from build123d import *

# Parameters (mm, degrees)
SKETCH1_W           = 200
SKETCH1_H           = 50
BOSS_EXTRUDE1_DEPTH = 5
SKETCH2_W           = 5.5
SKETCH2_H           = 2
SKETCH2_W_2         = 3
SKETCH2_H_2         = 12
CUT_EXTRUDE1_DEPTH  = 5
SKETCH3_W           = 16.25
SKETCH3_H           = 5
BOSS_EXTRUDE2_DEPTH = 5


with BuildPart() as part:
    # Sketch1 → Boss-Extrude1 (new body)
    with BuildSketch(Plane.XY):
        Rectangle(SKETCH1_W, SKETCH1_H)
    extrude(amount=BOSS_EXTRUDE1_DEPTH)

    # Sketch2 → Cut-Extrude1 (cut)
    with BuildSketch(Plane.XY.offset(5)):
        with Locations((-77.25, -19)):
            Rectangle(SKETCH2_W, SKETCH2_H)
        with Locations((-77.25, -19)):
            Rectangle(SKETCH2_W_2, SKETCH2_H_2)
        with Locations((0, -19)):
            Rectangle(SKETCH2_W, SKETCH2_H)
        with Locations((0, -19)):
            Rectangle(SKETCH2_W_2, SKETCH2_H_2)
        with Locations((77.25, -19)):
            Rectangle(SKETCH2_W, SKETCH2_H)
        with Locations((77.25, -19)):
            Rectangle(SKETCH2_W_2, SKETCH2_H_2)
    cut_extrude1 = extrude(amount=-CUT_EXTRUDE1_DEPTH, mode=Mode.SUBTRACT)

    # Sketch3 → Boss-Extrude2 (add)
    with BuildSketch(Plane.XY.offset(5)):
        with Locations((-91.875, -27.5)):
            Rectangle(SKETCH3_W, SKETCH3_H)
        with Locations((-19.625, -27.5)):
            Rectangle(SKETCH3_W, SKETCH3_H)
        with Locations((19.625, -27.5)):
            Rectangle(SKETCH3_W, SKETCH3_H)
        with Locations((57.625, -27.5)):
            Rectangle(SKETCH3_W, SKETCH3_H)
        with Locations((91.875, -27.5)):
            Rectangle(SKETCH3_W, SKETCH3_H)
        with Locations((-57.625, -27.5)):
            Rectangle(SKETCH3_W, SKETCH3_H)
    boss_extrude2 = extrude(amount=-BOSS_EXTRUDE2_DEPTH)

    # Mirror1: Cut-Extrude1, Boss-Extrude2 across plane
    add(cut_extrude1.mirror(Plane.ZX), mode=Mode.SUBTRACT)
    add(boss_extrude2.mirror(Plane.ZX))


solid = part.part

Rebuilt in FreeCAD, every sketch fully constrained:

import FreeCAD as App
import Part
import Sketcher
from FreeCAD import Vector

doc = App.newDocument("Part")
params = doc.addObject("Spreadsheet::Sheet", "Params")
for row, (alias, value) in enumerate([
    ("sketch1_width", "200 mm"),
    ("sketch1_height", "50 mm"),
    ("pad1_length", "5 mm"),
    ("sketch2_width", "3 mm"),
    ("sketch2_height", "2 mm"),
    ("sketch2_height2", "5 mm"),
    ("pocket1_length", "5 mm"),
    ("sketch3_height", "5 mm"),
    ("pad2_length", "5 mm"),
], start=1):
    params.set(f"A{row}", alias)
    params.set(f"B{row}", "=" + value)
    params.setAlias(f"B{row}", alias)

body = doc.addObject("PartDesign::Body", "Body")

sketch1 = doc.addObject("Sketcher::SketchObject", "Sketch")
body.addObject(sketch1)
sketch1.AttachmentSupport = (doc.XY_Plane, [""])
sketch1.MapMode = "FlatFace"
sketch1.addGeometry(Part.LineSegment(Vector(-100, 25, 0), Vector(-100, -25, 0)), False)
sketch1.addGeometry(Part.LineSegment(Vector(-100, -25, 0), Vector(100, -25, 0)), False)
sketch1.addGeometry(Part.LineSegment(Vector(100, -25, 0), Vector(100, 25, 0)), False)
sketch1.addGeometry(Part.LineSegment(Vector(100, 25, 0), Vector(-100, 25, 0)), False)
sketch1.addConstraint(Sketcher.Constraint("Coincident", 0, 2, 1, 1))
sketch1.addConstraint(Sketcher.Constraint("Coincident", 1, 2, 2, 1))
sketch1.addConstraint(Sketcher.Constraint("Coincident", 2, 2, 3, 1))
sketch1.addConstraint(Sketcher.Constraint("Coincident", 3, 2, 0, 1))
sketch1.addConstraint(Sketcher.Constraint("Vertical", 0))
sketch1.addConstraint(Sketcher.Constraint("Horizontal", 1))
sketch1.addConstraint(Sketcher.Constraint("Vertical", 2))
sketch1.addConstraint(Sketcher.Constraint("Horizontal", 3))
sketch1.addConstraint(Sketcher.Constraint("Symmetric", 0, 2, 2, 2, -1, 1))
sketch1.addConstraint(Sketcher.Constraint("DistanceX", 1, 1, 1, 2, 200.0))
sketch1.addConstraint(Sketcher.Constraint("DistanceY", 0, 2, 0, 1, 50.0))
sketch1.setExpression("Constraints[9]", "Params.sketch1_width")
sketch1.setExpression("Constraints[10]", "Params.sketch1_height")
pad1 = doc.addObject("PartDesign::Pad", "Pad")
body.addObject(pad1)
pad1.Profile = sketch1
pad1.setExpression("Length", "Params.pad1_length")

sketch2 = doc.addObject("Sketcher::SketchObject", "Sketch001")
body.addObject(sketch2)
sketch2.AttachmentSupport = (doc.XY_Plane, [""])
sketch2.MapMode = "FlatFace"
sketch2.AttachmentOffset = App.Placement(Vector(0, 0, 5), App.Rotation())
sketch2.addGeometry(Part.LineSegment(Vector(-80, -18, 0), Vector(-80, -20, 0)), False)
sketch2.addGeometry(Part.LineSegment(Vector(-80, -20, 0), Vector(-78.8, -20, 0)), False)
sketch2.addGeometry(Part.LineSegment(Vector(-78.8, -20, 0), Vector(-78.8, -25, 0)), False)
sketch2.addGeometry(Part.LineSegment(Vector(-78.8, -25, 0), Vector(-75.8, -25, 0)), False)
sketch2.addGeometry(Part.LineSegment(Vector(-75.8, -25, 0), Vector(-75.8, -20, 0)), False)
sketch2.addGeometry(Part.LineSegment(Vector(-75.8, -20, 0), Vector(-74.5, -20, 0)), False)
sketch2.addGeometry(Part.LineSegment(Vector(-74.5, -20, 0), Vector(-74.5, -18, 0)), False)
sketch2.addGeometry(Part.LineSegment(Vector(-74.5, -18, 0), Vector(-75.8, -18, 0)), False)
sketch2.addGeometry(Part.LineSegment(Vector(-75.8, -18, 0), Vector(-75.8, -13, 0)), False)
sketch2.addGeometry(Part.LineSegment(Vector(-75.8, -13, 0), Vector(-78.8, -13, 0)), False)
sketch2.addGeometry(Part.LineSegment(Vector(-78.8, -13, 0), Vector(-78.8, -18, 0)), False)
sketch2.addGeometry(Part.LineSegment(Vector(-78.8, -18, 0), Vector(-80, -18, 0)), False)
sketch2.addGeometry(Part.LineSegment(Vector(-2.8, -18, 0), Vector(-2.8, -20, 0)), False)
sketch2.addGeometry(Part.LineSegment(Vector(-2.8, -20, 0), Vector(-1.5, -20, 0)), False)
sketch2.addGeometry(Part.LineSegment(Vector(-1.5, -20, 0), Vector(-1.5, -25, 0)), False)
sketch2.addGeometry(Part.LineSegment(Vector(-1.5, -25, 0), Vector(1.5, -25, 0)), False)
sketch2.addGeometry(Part.LineSegment(Vector(1.5, -25, 0), Vector(1.5, -20, 0)), False)
sketch2.addGeometry(Part.LineSegment(Vector(1.5, -20, 0), Vector(2.8, -20, 0)), False)
sketch2.addGeometry(Part.LineSegment(Vector(2.8, -20, 0), Vector(2.8, -18, 0)), False)
sketch2.addGeometry(Part.LineSegment(Vector(2.8, -18, 0), Vector(1.5, -18, 0)), False)
sketch2.addGeometry(Part.LineSegment(Vector(1.5, -18, 0), Vector(1.5, -13, 0)), False)
sketch2.addGeometry(Part.LineSegment(Vector(1.5, -13, 0), Vector(-1.5, -13, 0)), False)
sketch2.addGeometry(Part.LineSegment(Vector(-1.5, -13, 0), Vector(-1.5, -18, 0)), False)
sketch2.addGeometry(Part.LineSegment(Vector(-1.5, -18, 0), Vector(-2.8, -18, 0)), False)
sketch2.addGeometry(Part.LineSegment(Vector(74.5, -18, 0), Vector(74.5, -20, 0)), False)
sketch2.addGeometry(Part.LineSegment(Vector(74.5, -20, 0), Vector(75.8, -20, 0)), False)
sketch2.addGeometry(Part.LineSegment(Vector(75.8, -20, 0), Vector(75.8, -25, 0)), False)
sketch2.addGeometry(Part.LineSegment(Vector(75.8, -25, 0), Vector(78.8, -25, 0)), False)
sketch2.addGeometry(Part.LineSegment(Vector(78.8, -25, 0), Vector(78.8, -20, 0)), False)
sketch2.addGeometry(Part.LineSegment(Vector(78.8, -20, 0), Vector(80, -20, 0)), False)
sketch2.addGeometry(Part.LineSegment(Vector(80, -20, 0), Vector(80, -18, 0)), False)
sketch2.addGeometry(Part.LineSegment(Vector(80, -18, 0), Vector(78.8, -18, 0)), False)
sketch2.addGeometry(Part.LineSegment(Vector(78.8, -18, 0), Vector(78.8, -13, 0)), False)
sketch2.addGeometry(Part.LineSegment(Vector(78.8, -13, 0), Vector(75.8, -13, 0)), False)
sketch2.addGeometry(Part.LineSegment(Vector(75.8, -13, 0), Vector(75.8, -18, 0)), False)
sketch2.addGeometry(Part.LineSegment(Vector(75.8, -18, 0), Vector(74.5, -18, 0)), False)
sketch2.addConstraint(Sketcher.Constraint("Coincident", 0, 2, 1, 1))
sketch2.addConstraint(Sketcher.Constraint("Coincident", 1, 2, 2, 1))
sketch2.addConstraint(Sketcher.Constraint("Coincident", 2, 2, 3, 1))
sketch2.addConstraint(Sketcher.Constraint("Coincident", 3, 2, 4, 1))
sketch2.addConstraint(Sketcher.Constraint("Coincident", 4, 2, 5, 1))
sketch2.addConstraint(Sketcher.Constraint("Coincident", 5, 2, 6, 1))
sketch2.addConstraint(Sketcher.Constraint("Coincident", 6, 2, 7, 1))
sketch2.addConstraint(Sketcher.Constraint("Coincident", 7, 2, 8, 1))
sketch2.addConstraint(Sketcher.Constraint("Coincident", 8, 2, 9, 1))
sketch2.addConstraint(Sketcher.Constraint("Coincident", 9, 2, 10, 1))
sketch2.addConstraint(Sketcher.Constraint("Coincident", 10, 2, 11, 1))
sketch2.addConstraint(Sketcher.Constraint("Coincident", 11, 2, 0, 1))
sketch2.addConstraint(Sketcher.Constraint("Coincident", 12, 2, 13, 1))
sketch2.addConstraint(Sketcher.Constraint("Coincident", 13, 2, 14, 1))
sketch2.addConstraint(Sketcher.Constraint("Coincident", 14, 2, 15, 1))
sketch2.addConstraint(Sketcher.Constraint("Coincident", 15, 2, 16, 1))
sketch2.addConstraint(Sketcher.Constraint("Coincident", 16, 2, 17, 1))
sketch2.addConstraint(Sketcher.Constraint("Coincident", 17, 2, 18, 1))
sketch2.addConstraint(Sketcher.Constraint("Coincident", 18, 2, 19, 1))
sketch2.addConstraint(Sketcher.Constraint("Coincident", 19, 2, 20, 1))
sketch2.addConstraint(Sketcher.Constraint("Coincident", 20, 2, 21, 1))
sketch2.addConstraint(Sketcher.Constraint("Coincident", 21, 2, 22, 1))
sketch2.addConstraint(Sketcher.Constraint("Coincident", 22, 2, 23, 1))
sketch2.addConstraint(Sketcher.Constraint("Coincident", 23, 2, 12, 1))
sketch2.addConstraint(Sketcher.Constraint("Coincident", 24, 2, 25, 1))
sketch2.addConstraint(Sketcher.Constraint("Coincident", 25, 2, 26, 1))
sketch2.addConstraint(Sketcher.Constraint("Coincident", 26, 2, 27, 1))
sketch2.addConstraint(Sketcher.Constraint("Coincident", 27, 2, 28, 1))
sketch2.addConstraint(Sketcher.Constraint("Coincident", 28, 2, 29, 1))
sketch2.addConstraint(Sketcher.Constraint("Coincident", 29, 2, 30, 1))
sketch2.addConstraint(Sketcher.Constraint("Coincident", 30, 2, 31, 1))
sketch2.addConstraint(Sketcher.Constraint("Coincident", 31, 2, 32, 1))
sketch2.addConstraint(Sketcher.Constraint("Coincident", 32, 2, 33, 1))
sketch2.addConstraint(Sketcher.Constraint("Coincident", 33, 2, 34, 1))
sketch2.addConstraint(Sketcher.Constraint("Coincident", 34, 2, 35, 1))
sketch2.addConstraint(Sketcher.Constraint("Coincident", 35, 2, 24, 1))
sketch2.addConstraint(Sketcher.Constraint("Vertical", 0))
sketch2.addConstraint(Sketcher.Constraint("Horizontal", 1))
sketch2.addConstraint(Sketcher.Constraint("Vertical", 2))
sketch2.addConstraint(Sketcher.Constraint("Horizontal", 3))
sketch2.addConstraint(Sketcher.Constraint("Vertical", 4))
sketch2.addConstraint(Sketcher.Constraint("Horizontal", 5))
sketch2.addConstraint(Sketcher.Constraint("Vertical", 6))
sketch2.addConstraint(Sketcher.Constraint("Horizontal", 7))
sketch2.addConstraint(Sketcher.Constraint("Vertical", 8))
sketch2.addConstraint(Sketcher.Constraint("Horizontal", 9))
sketch2.addConstraint(Sketcher.Constraint("Vertical", 10))
sketch2.addConstraint(Sketcher.Constraint("Horizontal", 11))
sketch2.addConstraint(Sketcher.Constraint("Vertical", 12))
sketch2.addConstraint(Sketcher.Constraint("Horizontal", 13))
sketch2.addConstraint(Sketcher.Constraint("Vertical", 14))
sketch2.addConstraint(Sketcher.Constraint("Horizontal", 15))
sketch2.addConstraint(Sketcher.Constraint("Vertical", 16))
sketch2.addConstraint(Sketcher.Constraint("Horizontal", 17))
sketch2.addConstraint(Sketcher.Constraint("Vertical", 18))
sketch2.addConstraint(Sketcher.Constraint("Horizontal", 19))
sketch2.addConstraint(Sketcher.Constraint("Vertical", 20))
sketch2.addConstraint(Sketcher.Constraint("Horizontal", 21))
sketch2.addConstraint(Sketcher.Constraint("Vertical", 22))
sketch2.addConstraint(Sketcher.Constraint("Horizontal", 23))
sketch2.addConstraint(Sketcher.Constraint("Vertical", 24))
sketch2.addConstraint(Sketcher.Constraint("Horizontal", 25))
sketch2.addConstraint(Sketcher.Constraint("Vertical", 26))
sketch2.addConstraint(Sketcher.Constraint("Horizontal", 27))
sketch2.addConstraint(Sketcher.Constraint("Vertical", 28))
sketch2.addConstraint(Sketcher.Constraint("Horizontal", 29))
sketch2.addConstraint(Sketcher.Constraint("Vertical", 30))
sketch2.addConstraint(Sketcher.Constraint("Horizontal", 31))
sketch2.addConstraint(Sketcher.Constraint("Vertical", 32))
sketch2.addConstraint(Sketcher.Constraint("Horizontal", 33))
sketch2.addConstraint(Sketcher.Constraint("Vertical", 34))
sketch2.addConstraint(Sketcher.Constraint("Horizontal", 35))
sketch2.addConstraint(Sketcher.Constraint("Symmetric", 13, 2, 16, 2, -2))
sketch2.addConstraint(Sketcher.Constraint("Symmetric", 19, 2, 22, 2, -2))
sketch2.addConstraint(Sketcher.Constraint("Symmetric", 5, 2, 24, 2, -2))
sketch2.addConstraint(Sketcher.Constraint("Symmetric", 3, 2, 26, 2, -2))
sketch2.addConstraint(Sketcher.Constraint("Symmetric", 1, 2, 28, 2, -2))
sketch2.addConstraint(Sketcher.Constraint("Symmetric", 11, 2, 30, 2, -2))
sketch2.addConstraint(Sketcher.Constraint("Symmetric", 9, 2, 32, 2, -2))
sketch2.addConstraint(Sketcher.Constraint("Symmetric", 7, 2, 34, 2, -2))
sketch2.addConstraint(Sketcher.Constraint("Horizontal", 1, 2, 4, 2))
sketch2.addConstraint(Sketcher.Constraint("Horizontal", 7, 2, 10, 2))
sketch2.addConstraint(Sketcher.Constraint("Horizontal", 5, 2, 12, 2))
sketch2.addConstraint(Sketcher.Constraint("Horizontal", 3, 2, 14, 2))
sketch2.addConstraint(Sketcher.Constraint("Horizontal", 11, 2, 18, 2))
sketch2.addConstraint(Sketcher.Constraint("Horizontal", 9, 2, 20, 2))
sketch2.addConstraint(Sketcher.Constraint("Vertical", 4, 2, 7, 2))
sketch2.addConstraint(Sketcher.Constraint("Vertical", 2, 2, 9, 2))
sketch2.addConstraint(Sketcher.Constraint("Vertical", 16, 2, 19, 2))
sketch2.addConstraint(Sketcher.Constraint("Equal", 1, 5))
sketch2.addConstraint(Sketcher.Constraint("Equal", 11, 13))
sketch2.addConstraint(Sketcher.Constraint("Equal", 9, 15))
sketch2.addConstraint(Sketcher.Constraint("Equal", 13, 17))
sketch2.addConstraint(Sketcher.Constraint("Equal", 4, 8))
sketch2.addConstraint(Sketcher.Constraint("DistanceX", 3, 1, 3, 2, 3.0))
sketch2.addConstraint(Sketcher.Constraint("DistanceY", 0, 2, 0, 1, 2.0))
sketch2.addConstraint(Sketcher.Constraint("DistanceY", 2, 2, 2, 1, 5.0))
sketch2.addConstraint(Sketcher.Constraint("DistanceX", 0, 2, -1, 1, 80.0))
sketch2.addConstraint(Sketcher.Constraint("DistanceY", 0, 2, -1, 1, 20.0))
sketch2.addConstraint(Sketcher.Constraint("DistanceX", 4, 2, 12, 2, 73.0))
sketch2.setExpression("Constraints[94]", "Params.sketch2_width")
sketch2.setExpression("Constraints[95]", "Params.sketch2_height")
sketch2.setExpression("Constraints[96]", "Params.sketch2_height2")
pocket1 = doc.addObject("PartDesign::Pocket", "Pocket")
body.addObject(pocket1)
pocket1.Profile = sketch2
pocket1.setExpression("Length", "Params.pocket1_length")

sketch3 = doc.addObject("Sketcher::SketchObject", "Sketch002")
body.addObject(sketch3)
sketch3.AttachmentSupport = (doc.XY_Plane, [""])
sketch3.MapMode = "FlatFace"
sketch3.AttachmentOffset = App.Placement(Vector(0, 0, 5), App.Rotation())
sketch3.addGeometry(Part.LineSegment(Vector(-100, -25, 0), Vector(-100, -30, 0)), False)
sketch3.addGeometry(Part.LineSegment(Vector(-100, -30, 0), Vector(-84, -30, 0)), False)
sketch3.addGeometry(Part.LineSegment(Vector(-84, -30, 0), Vector(-84, -25, 0)), False)
sketch3.addGeometry(Part.LineSegment(Vector(-84, -25, 0), Vector(-100, -25, 0)), False)
sketch3.addGeometry(Part.LineSegment(Vector(-28, -25, 0), Vector(-28, -30, 0)), False)
sketch3.addGeometry(Part.LineSegment(Vector(-28, -30, 0), Vector(-12, -30, 0)), False)
sketch3.addGeometry(Part.LineSegment(Vector(-12, -30, 0), Vector(-12, -25, 0)), False)
sketch3.addGeometry(Part.LineSegment(Vector(-12, -25, 0), Vector(-28, -25, 0)), False)
sketch3.addGeometry(Part.LineSegment(Vector(12, -25, 0), Vector(12, -30, 0)), False)
sketch3.addGeometry(Part.LineSegment(Vector(12, -30, 0), Vector(28, -30, 0)), False)
sketch3.addGeometry(Part.LineSegment(Vector(28, -30, 0), Vector(28, -25, 0)), False)
sketch3.addGeometry(Part.LineSegment(Vector(28, -25, 0), Vector(12, -25, 0)), False)
sketch3.addGeometry(Part.LineSegment(Vector(50, -25, 0), Vector(50, -30, 0)), False)
sketch3.addGeometry(Part.LineSegment(Vector(50, -30, 0), Vector(66, -30, 0)), False)
sketch3.addGeometry(Part.LineSegment(Vector(66, -30, 0), Vector(66, -25, 0)), False)
sketch3.addGeometry(Part.LineSegment(Vector(66, -25, 0), Vector(50, -25, 0)), False)
sketch3.addGeometry(Part.LineSegment(Vector(84, -25, 0), Vector(84, -30, 0)), False)
sketch3.addGeometry(Part.LineSegment(Vector(84, -30, 0), Vector(100, -30, 0)), False)
sketch3.addGeometry(Part.LineSegment(Vector(100, -30, 0), Vector(100, -25, 0)), False)
sketch3.addGeometry(Part.LineSegment(Vector(100, -25, 0), Vector(84, -25, 0)), False)
sketch3.addGeometry(Part.LineSegment(Vector(-66, -25, 0), Vector(-66, -30, 0)), False)
sketch3.addGeometry(Part.LineSegment(Vector(-66, -30, 0), Vector(-50, -30, 0)), False)
sketch3.addGeometry(Part.LineSegment(Vector(-50, -30, 0), Vector(-50, -25, 0)), False)
sketch3.addGeometry(Part.LineSegment(Vector(-50, -25, 0), Vector(-66, -25, 0)), False)
sketch3.addConstraint(Sketcher.Constraint("Coincident", 0, 2, 1, 1))
sketch3.addConstraint(Sketcher.Constraint("Coincident", 1, 2, 2, 1))
sketch3.addConstraint(Sketcher.Constraint("Coincident", 2, 2, 3, 1))
sketch3.addConstraint(Sketcher.Constraint("Coincident", 3, 2, 0, 1))
sketch3.addConstraint(Sketcher.Constraint("Coincident", 4, 2, 5, 1))
sketch3.addConstraint(Sketcher.Constraint("Coincident", 5, 2, 6, 1))
sketch3.addConstraint(Sketcher.Constraint("Coincident", 6, 2, 7, 1))
sketch3.addConstraint(Sketcher.Constraint("Coincident", 7, 2, 4, 1))
sketch3.addConstraint(Sketcher.Constraint("Coincident", 8, 2, 9, 1))
sketch3.addConstraint(Sketcher.Constraint("Coincident", 9, 2, 10, 1))
sketch3.addConstraint(Sketcher.Constraint("Coincident", 10, 2, 11, 1))
sketch3.addConstraint(Sketcher.Constraint("Coincident", 11, 2, 8, 1))
sketch3.addConstraint(Sketcher.Constraint("Coincident", 12, 2, 13, 1))
sketch3.addConstraint(Sketcher.Constraint("Coincident", 13, 2, 14, 1))
sketch3.addConstraint(Sketcher.Constraint("Coincident", 14, 2, 15, 1))
sketch3.addConstraint(Sketcher.Constraint("Coincident", 15, 2, 12, 1))
sketch3.addConstraint(Sketcher.Constraint("Coincident", 16, 2, 17, 1))
sketch3.addConstraint(Sketcher.Constraint("Coincident", 17, 2, 18, 1))
sketch3.addConstraint(Sketcher.Constraint("Coincident", 18, 2, 19, 1))
sketch3.addConstraint(Sketcher.Constraint("Coincident", 19, 2, 16, 1))
sketch3.addConstraint(Sketcher.Constraint("Coincident", 20, 2, 21, 1))
sketch3.addConstraint(Sketcher.Constraint("Coincident", 21, 2, 22, 1))
sketch3.addConstraint(Sketcher.Constraint("Coincident", 22, 2, 23, 1))
sketch3.addConstraint(Sketcher.Constraint("Coincident", 23, 2, 20, 1))
sketch3.addConstraint(Sketcher.Constraint("Vertical", 0))
sketch3.addConstraint(Sketcher.Constraint("Horizontal", 1))
sketch3.addConstraint(Sketcher.Constraint("Vertical", 2))
sketch3.addConstraint(Sketcher.Constraint("Horizontal", 3))
sketch3.addConstraint(Sketcher.Constraint("Vertical", 4))
sketch3.addConstraint(Sketcher.Constraint("Horizontal", 5))
sketch3.addConstraint(Sketcher.Constraint("Vertical", 6))
sketch3.addConstraint(Sketcher.Constraint("Horizontal", 7))
sketch3.addConstraint(Sketcher.Constraint("Vertical", 8))
sketch3.addConstraint(Sketcher.Constraint("Horizontal", 9))
sketch3.addConstraint(Sketcher.Constraint("Vertical", 10))
sketch3.addConstraint(Sketcher.Constraint("Horizontal", 11))
sketch3.addConstraint(Sketcher.Constraint("Vertical", 12))
sketch3.addConstraint(Sketcher.Constraint("Horizontal", 13))
sketch3.addConstraint(Sketcher.Constraint("Vertical", 14))
sketch3.addConstraint(Sketcher.Constraint("Horizontal", 15))
sketch3.addConstraint(Sketcher.Constraint("Vertical", 16))
sketch3.addConstraint(Sketcher.Constraint("Horizontal", 17))
sketch3.addConstraint(Sketcher.Constraint("Vertical", 18))
sketch3.addConstraint(Sketcher.Constraint("Horizontal", 19))
sketch3.addConstraint(Sketcher.Constraint("Vertical", 20))
sketch3.addConstraint(Sketcher.Constraint("Horizontal", 21))
sketch3.addConstraint(Sketcher.Constraint("Vertical", 22))
sketch3.addConstraint(Sketcher.Constraint("Horizontal", 23))
sketch3.addConstraint(Sketcher.Constraint("Symmetric", 5, 2, 8, 2, -2))
sketch3.addConstraint(Sketcher.Constraint("Symmetric", 7, 2, 10, 2, -2))
sketch3.addConstraint(Sketcher.Constraint("Symmetric", 1, 2, 16, 2, -2))
sketch3.addConstraint(Sketcher.Constraint("Symmetric", 3, 2, 18, 2, -2))
sketch3.addConstraint(Sketcher.Constraint("Symmetric", 13, 2, 20, 2, -2))
sketch3.addConstraint(Sketcher.Constraint("Symmetric", 15, 2, 22, 2, -2))
sketch3.addConstraint(Sketcher.Constraint("Horizontal", 1, 2, 4, 2))
sketch3.addConstraint(Sketcher.Constraint("Horizontal", 3, 2, 6, 2))
sketch3.addConstraint(Sketcher.Constraint("Horizontal", 9, 2, 12, 2))
sketch3.addConstraint(Sketcher.Constraint("Horizontal", 11, 2, 14, 2))
sketch3.addConstraint(Sketcher.Constraint("Equal", 3, 5))
sketch3.addConstraint(Sketcher.Constraint("Equal", 11, 13))
sketch3.addConstraint(Sketcher.Constraint("DistanceY", 0, 2, 0, 1, 5.0))
sketch3.addConstraint(Sketcher.Constraint("DistanceX", 0, 2, -1, 1, 100.0))
sketch3.addConstraint(Sketcher.Constraint("DistanceY", 0, 2, -1, 1, 30.0))
sketch3.addConstraint(Sketcher.Constraint("DistanceX", 1, 2, 4, 2, 56.0))
sketch3.addConstraint(Sketcher.Constraint("DistanceX", 5, 2, 8, 2, 23.0))
sketch3.addConstraint(Sketcher.Constraint("DistanceX", 8, 2, 12, 2, 38.0))
sketch3.setExpression("Constraints[60]", "Params.sketch3_height")
pad2 = doc.addObject("PartDesign::Pad", "Pad001")
body.addObject(pad2)
pad2.Profile = sketch3
pad2.setExpression("Length", "Params.pad2_length")
pad2.Reversed = True
doc.recompute()

mirrored = doc.addObject("PartDesign::Mirrored", "Mirrored")
body.addObject(mirrored)
mirrored.Originals = [pocket1, pad2]
mirrored.MirrorPlane = (doc.XZ_Plane, [""])
body.Tip = mirrored

doc.recompute()
